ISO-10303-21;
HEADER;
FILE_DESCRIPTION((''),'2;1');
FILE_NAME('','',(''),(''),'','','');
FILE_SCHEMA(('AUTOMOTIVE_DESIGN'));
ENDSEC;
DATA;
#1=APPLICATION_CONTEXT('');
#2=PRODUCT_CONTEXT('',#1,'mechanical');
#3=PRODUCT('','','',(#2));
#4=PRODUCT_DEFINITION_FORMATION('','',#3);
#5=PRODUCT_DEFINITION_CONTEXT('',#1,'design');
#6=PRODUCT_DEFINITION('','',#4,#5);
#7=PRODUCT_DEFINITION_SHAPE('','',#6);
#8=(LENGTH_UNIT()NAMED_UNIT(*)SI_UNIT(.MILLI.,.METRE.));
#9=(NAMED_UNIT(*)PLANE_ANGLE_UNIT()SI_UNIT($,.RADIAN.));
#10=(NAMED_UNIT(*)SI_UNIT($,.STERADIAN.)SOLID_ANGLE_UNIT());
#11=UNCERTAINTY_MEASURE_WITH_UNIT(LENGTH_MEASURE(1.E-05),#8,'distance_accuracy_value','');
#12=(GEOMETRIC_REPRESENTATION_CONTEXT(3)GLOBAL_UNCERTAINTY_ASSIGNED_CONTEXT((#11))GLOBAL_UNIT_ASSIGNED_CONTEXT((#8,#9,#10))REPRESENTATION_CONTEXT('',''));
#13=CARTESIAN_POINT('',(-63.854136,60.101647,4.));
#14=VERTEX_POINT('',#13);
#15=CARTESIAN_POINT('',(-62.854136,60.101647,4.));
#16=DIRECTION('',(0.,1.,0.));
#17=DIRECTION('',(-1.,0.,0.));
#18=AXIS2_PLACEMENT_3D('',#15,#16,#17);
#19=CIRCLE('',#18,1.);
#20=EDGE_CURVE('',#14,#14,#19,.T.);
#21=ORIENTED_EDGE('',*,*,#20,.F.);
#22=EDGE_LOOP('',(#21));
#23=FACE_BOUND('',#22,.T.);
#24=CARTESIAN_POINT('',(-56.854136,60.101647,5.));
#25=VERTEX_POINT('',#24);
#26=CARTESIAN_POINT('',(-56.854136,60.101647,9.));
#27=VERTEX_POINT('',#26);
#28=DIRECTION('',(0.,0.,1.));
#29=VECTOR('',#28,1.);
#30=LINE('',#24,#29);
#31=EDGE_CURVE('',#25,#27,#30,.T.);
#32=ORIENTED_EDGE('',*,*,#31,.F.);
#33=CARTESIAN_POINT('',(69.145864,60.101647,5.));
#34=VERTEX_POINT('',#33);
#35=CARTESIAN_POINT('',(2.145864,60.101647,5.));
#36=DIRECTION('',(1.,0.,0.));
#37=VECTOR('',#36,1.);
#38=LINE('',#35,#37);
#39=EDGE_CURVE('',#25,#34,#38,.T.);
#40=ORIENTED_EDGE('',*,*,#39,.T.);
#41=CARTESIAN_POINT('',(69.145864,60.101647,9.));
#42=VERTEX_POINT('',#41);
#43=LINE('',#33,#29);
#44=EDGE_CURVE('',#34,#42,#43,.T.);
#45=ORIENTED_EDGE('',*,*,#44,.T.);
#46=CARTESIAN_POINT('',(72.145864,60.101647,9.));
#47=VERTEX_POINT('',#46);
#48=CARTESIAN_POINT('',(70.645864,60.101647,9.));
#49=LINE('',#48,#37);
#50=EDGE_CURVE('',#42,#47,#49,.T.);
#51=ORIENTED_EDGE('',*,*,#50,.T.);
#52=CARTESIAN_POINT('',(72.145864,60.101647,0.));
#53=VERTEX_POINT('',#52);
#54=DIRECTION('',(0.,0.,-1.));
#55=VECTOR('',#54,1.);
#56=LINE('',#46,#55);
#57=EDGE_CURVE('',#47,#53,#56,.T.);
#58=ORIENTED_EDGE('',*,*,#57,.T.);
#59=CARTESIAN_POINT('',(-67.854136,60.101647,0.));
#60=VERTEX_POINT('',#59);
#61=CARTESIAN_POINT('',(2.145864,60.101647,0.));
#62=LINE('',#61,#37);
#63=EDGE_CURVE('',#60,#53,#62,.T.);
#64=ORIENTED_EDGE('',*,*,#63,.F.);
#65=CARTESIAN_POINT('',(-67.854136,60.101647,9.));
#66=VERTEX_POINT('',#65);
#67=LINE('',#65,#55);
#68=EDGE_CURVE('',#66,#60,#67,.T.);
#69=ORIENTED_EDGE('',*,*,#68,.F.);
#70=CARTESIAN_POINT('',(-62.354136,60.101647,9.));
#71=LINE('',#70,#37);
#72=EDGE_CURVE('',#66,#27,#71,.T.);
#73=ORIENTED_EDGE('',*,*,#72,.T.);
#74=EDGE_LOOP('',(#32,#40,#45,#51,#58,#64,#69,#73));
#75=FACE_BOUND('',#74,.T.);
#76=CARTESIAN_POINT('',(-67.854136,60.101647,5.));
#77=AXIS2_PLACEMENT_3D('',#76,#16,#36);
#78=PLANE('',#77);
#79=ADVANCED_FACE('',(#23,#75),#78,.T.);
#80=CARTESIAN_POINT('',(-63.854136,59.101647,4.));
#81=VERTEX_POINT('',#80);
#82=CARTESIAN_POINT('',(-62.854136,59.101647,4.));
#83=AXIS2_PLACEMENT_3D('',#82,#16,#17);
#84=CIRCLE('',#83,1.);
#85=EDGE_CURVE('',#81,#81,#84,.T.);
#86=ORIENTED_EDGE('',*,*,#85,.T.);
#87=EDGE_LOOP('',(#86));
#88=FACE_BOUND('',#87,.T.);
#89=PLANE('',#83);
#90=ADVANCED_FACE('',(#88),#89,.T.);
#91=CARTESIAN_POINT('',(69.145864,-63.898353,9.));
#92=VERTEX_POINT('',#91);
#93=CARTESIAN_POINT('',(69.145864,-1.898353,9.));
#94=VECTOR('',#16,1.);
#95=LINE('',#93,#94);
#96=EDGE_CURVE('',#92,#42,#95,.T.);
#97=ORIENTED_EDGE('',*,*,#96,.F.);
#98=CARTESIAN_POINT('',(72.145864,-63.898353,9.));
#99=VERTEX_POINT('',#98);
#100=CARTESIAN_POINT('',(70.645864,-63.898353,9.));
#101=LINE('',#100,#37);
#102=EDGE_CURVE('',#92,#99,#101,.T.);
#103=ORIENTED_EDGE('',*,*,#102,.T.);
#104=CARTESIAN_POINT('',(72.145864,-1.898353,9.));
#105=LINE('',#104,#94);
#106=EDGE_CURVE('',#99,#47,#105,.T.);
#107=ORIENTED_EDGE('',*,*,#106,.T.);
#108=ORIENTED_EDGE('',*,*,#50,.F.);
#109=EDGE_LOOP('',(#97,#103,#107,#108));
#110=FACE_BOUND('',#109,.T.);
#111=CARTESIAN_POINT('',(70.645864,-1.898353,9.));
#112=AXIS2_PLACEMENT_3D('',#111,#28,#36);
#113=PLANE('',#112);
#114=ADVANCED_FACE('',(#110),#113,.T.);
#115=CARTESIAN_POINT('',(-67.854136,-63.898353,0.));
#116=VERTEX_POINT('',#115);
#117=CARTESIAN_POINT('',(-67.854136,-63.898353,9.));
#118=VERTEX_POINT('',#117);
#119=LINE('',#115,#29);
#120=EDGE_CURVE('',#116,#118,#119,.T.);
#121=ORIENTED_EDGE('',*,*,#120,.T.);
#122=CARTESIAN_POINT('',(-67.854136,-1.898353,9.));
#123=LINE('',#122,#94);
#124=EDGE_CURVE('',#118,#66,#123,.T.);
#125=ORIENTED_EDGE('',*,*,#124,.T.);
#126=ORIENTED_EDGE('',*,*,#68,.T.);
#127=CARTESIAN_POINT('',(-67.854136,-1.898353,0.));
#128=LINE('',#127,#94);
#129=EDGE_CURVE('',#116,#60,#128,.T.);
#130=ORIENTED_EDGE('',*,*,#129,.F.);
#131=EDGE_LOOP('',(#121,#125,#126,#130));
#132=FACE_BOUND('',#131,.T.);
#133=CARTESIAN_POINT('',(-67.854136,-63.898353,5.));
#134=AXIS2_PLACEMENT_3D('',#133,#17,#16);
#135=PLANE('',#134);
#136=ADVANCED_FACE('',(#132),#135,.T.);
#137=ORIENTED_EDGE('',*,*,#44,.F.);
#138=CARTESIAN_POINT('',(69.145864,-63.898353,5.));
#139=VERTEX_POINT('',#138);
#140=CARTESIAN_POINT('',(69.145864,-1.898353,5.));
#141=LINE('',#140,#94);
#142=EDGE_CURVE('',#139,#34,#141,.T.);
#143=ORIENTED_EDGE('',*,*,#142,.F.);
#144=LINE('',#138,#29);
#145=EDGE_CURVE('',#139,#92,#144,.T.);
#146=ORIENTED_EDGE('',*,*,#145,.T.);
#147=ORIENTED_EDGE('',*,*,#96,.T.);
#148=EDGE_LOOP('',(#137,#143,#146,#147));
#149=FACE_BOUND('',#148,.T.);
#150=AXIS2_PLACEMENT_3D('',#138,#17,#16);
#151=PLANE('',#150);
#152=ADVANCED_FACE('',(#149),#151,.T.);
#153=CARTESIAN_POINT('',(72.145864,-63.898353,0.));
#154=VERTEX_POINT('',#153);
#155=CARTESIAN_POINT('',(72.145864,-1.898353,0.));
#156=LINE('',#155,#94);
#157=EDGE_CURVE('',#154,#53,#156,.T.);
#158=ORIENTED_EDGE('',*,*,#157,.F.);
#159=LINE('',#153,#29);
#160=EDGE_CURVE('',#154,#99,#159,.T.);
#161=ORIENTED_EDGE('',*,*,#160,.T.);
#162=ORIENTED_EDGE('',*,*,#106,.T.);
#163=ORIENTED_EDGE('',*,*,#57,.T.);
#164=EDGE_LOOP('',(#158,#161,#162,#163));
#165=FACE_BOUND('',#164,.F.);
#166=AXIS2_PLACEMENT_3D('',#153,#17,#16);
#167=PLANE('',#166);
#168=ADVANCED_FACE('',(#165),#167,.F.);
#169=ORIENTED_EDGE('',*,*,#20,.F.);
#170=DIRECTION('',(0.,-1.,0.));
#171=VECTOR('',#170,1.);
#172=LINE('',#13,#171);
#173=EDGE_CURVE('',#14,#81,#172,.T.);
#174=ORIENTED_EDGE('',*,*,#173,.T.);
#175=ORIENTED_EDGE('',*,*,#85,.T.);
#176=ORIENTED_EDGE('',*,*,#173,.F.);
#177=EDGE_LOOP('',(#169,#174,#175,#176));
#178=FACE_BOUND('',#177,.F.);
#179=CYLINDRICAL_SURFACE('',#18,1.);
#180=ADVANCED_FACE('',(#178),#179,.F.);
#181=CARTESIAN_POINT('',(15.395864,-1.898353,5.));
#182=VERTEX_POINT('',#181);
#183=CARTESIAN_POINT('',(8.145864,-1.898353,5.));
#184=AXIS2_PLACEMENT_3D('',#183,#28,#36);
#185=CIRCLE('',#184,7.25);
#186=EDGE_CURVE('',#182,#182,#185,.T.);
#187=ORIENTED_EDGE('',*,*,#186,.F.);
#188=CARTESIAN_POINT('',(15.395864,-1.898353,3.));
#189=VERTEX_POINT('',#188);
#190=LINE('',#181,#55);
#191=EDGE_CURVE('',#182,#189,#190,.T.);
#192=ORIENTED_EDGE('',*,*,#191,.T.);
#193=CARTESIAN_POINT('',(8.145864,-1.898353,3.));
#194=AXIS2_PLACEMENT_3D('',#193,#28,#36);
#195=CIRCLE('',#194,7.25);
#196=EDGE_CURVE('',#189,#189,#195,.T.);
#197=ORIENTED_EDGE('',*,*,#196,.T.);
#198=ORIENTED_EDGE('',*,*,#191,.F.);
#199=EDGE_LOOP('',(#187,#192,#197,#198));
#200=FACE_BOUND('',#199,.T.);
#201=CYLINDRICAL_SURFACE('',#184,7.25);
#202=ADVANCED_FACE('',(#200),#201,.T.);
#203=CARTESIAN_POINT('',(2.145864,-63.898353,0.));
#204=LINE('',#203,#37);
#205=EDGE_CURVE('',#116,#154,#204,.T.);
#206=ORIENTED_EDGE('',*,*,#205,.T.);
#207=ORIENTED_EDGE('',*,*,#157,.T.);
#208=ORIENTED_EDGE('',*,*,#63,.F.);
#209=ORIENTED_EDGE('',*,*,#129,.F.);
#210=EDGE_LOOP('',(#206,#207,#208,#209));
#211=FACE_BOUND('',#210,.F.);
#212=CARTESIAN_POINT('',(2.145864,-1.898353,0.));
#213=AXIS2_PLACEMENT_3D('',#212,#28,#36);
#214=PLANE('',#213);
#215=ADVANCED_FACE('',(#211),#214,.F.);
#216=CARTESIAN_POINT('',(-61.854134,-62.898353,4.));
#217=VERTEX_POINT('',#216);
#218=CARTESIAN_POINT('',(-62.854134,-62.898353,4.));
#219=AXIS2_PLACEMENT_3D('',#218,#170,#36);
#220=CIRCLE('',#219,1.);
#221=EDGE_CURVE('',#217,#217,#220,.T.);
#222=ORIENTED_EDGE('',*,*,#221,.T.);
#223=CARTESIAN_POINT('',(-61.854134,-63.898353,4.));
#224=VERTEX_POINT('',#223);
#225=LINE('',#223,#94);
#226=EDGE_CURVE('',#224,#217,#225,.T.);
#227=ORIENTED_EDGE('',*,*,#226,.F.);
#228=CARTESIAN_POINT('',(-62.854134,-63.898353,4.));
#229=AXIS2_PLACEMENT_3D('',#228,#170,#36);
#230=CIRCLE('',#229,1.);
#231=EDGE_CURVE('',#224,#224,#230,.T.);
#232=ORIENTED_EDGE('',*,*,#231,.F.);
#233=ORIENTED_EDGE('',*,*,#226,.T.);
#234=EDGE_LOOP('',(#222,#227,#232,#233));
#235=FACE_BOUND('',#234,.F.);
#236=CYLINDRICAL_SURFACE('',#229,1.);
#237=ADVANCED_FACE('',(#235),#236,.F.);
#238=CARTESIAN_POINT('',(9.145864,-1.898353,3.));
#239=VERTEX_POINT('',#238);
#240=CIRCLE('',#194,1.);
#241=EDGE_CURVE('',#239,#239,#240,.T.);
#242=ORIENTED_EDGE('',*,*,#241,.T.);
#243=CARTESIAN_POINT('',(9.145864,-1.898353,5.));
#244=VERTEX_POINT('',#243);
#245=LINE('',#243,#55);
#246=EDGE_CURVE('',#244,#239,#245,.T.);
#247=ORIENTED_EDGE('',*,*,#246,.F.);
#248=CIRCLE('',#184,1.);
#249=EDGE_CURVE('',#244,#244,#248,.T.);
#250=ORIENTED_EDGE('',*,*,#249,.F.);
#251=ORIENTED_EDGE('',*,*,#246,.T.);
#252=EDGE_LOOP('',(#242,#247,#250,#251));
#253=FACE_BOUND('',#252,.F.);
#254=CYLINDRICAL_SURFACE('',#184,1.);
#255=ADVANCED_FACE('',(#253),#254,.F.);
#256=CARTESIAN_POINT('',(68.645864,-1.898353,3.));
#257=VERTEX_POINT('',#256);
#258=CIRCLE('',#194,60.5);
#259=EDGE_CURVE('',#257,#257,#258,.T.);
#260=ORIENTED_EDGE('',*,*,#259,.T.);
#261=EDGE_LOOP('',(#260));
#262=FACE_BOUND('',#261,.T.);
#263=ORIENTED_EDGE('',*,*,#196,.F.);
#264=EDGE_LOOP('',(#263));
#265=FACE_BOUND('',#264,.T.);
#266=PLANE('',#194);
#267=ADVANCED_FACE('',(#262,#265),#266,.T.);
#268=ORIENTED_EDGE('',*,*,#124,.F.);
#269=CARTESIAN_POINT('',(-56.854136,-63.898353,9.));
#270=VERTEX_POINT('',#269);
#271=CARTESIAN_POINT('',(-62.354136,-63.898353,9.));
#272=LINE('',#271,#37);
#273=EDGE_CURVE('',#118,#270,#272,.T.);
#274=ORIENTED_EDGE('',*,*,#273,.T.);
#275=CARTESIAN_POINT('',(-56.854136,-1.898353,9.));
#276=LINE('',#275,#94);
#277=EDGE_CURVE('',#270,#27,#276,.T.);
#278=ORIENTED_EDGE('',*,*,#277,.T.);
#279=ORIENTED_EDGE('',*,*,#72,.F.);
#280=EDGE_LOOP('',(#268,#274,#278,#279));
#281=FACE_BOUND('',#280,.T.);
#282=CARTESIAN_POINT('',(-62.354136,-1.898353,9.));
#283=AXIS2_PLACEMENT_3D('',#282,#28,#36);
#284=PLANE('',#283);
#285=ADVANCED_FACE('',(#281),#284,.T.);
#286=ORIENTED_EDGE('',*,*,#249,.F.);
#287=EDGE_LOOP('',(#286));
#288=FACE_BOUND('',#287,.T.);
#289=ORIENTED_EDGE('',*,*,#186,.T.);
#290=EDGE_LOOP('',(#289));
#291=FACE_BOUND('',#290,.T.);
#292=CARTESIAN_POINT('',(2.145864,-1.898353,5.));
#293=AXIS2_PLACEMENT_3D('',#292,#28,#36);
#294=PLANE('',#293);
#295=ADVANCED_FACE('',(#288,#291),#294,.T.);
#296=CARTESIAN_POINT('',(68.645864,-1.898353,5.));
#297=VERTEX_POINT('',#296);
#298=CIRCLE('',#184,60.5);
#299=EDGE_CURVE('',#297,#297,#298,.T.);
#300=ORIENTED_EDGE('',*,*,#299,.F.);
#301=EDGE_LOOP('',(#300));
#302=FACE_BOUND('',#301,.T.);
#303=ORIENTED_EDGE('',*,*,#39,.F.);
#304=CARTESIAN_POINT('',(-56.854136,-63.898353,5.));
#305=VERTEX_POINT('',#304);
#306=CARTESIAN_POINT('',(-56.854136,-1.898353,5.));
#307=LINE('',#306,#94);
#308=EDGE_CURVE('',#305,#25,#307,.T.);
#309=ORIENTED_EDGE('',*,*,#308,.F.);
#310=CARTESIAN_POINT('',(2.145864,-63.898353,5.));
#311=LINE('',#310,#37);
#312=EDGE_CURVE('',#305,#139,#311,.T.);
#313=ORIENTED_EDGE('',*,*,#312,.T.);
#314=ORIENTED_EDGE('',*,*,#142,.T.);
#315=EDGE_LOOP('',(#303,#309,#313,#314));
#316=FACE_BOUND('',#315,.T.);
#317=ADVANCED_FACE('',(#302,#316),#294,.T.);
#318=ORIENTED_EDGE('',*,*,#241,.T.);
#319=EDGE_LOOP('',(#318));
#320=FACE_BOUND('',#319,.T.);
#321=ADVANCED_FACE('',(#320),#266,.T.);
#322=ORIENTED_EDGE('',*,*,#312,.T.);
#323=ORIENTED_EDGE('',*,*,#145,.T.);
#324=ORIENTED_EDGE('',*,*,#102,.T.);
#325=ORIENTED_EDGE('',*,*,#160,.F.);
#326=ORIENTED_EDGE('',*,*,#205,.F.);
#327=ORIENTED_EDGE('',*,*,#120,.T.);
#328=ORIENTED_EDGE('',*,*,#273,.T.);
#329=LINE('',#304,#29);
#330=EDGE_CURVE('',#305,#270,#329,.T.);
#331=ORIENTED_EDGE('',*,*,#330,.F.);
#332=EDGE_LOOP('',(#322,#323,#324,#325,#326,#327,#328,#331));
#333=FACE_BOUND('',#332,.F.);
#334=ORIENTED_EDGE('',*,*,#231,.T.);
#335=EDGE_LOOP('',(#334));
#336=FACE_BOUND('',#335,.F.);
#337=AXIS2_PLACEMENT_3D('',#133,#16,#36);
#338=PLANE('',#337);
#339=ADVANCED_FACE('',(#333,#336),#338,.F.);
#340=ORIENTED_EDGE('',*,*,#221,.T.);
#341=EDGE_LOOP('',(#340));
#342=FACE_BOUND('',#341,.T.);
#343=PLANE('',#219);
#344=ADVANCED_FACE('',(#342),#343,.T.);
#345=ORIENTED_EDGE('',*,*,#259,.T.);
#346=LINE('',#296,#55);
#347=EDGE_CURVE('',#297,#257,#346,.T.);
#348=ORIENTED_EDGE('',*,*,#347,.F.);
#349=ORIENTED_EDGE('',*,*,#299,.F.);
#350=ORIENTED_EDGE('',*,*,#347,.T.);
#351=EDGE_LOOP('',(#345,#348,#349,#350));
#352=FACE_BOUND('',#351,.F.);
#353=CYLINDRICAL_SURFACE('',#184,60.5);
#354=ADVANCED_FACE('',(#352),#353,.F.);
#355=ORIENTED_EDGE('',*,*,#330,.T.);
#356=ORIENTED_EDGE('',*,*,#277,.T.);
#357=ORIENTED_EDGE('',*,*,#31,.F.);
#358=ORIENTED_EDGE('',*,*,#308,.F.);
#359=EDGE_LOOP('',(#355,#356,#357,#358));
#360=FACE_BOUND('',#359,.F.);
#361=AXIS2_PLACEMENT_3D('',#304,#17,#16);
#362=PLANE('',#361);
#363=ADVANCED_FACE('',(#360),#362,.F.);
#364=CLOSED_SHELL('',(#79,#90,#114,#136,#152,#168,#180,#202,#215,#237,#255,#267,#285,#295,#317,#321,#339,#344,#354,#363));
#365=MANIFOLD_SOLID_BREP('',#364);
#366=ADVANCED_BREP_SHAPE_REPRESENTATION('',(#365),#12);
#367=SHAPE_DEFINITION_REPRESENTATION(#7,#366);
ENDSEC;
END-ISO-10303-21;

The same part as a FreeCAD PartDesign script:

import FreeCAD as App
import Part
import Sketcher
from FreeCAD import Vector
Q = App.Units.Quantity

doc = App.newDocument("Part")
body = doc.addObject("PartDesign::Body", "Body")

# Sketch on XY plane
sketch1 = body.newObject("Sketcher::SketchObject", "Sketch")
sketch1.AttachmentSupport = (doc.getObject("XY_Plane"), [""])
sketch1.MapMode = "FlatFace"
sketch1.addGeometry(Part.LineSegment(Vector(-68, 60, 0), Vector(-68, -64, 0)), False)
sketch1.addGeometry(Part.LineSegment(Vector(-68, -64, 0), Vector(72, -64, 0)), False)
sketch1.addGeometry(Part.LineSegment(Vector(72, -64, 0), Vector(72, 60, 0)), False)
sketch1.addGeometry(Part.LineSegment(Vector(72, 60, 0), Vector(-68, 60, 0)), False)
sketch1.addConstraint(Sketcher.Constraint("Coincident", 0, 2, 1, 1))
sketch1.addConstraint(Sketcher.Constraint("Coincident", 1, 2, 2, 1))
sketch1.addConstraint(Sketcher.Constraint("Coincident", 2, 2, 3, 1))
sketch1.addConstraint(Sketcher.Constraint("Coincident", 3, 2, 0, 1))
sketch1.addConstraint(Sketcher.Constraint("Vertical", 0))
sketch1.addConstraint(Sketcher.Constraint("Horizontal", 1))
sketch1.addConstraint(Sketcher.Constraint("Vertical", 2))
sketch1.addConstraint(Sketcher.Constraint("Horizontal", 3))
sketch1.addConstraint(Sketcher.Constraint("DistanceX", 1, 1, 1, 2, Q("140 mm")))
sketch1.addConstraint(Sketcher.Constraint("DistanceY", 0, 2, 0, 1, Q("124 mm")))
sketch1.addConstraint(Sketcher.Constraint("DistanceX", 0, 2, -1, 1, Q("67.854136 mm")))
sketch1.addConstraint(Sketcher.Constraint("DistanceY", 0, 2, -1, 1, Q("63.898353 mm")))
pad1 = body.newObject("PartDesign::Pad", "Pad")
pad1.Profile = sketch1
pad1.Length = 5

# Sketch on XY plane
sketch2 = body.newObject("Sketcher::SketchObject", "Sketch001")
sketch2.AttachmentSupport = (doc.getObject("XY_Plane"), [""])
sketch2.MapMode = "FlatFace"
sketch2.AttachmentOffset = App.Placement(Vector(0, 0, 5), App.Rotation())
sketch2.addGeometry(Part.LineSegment(Vector(-67.9, 60.1, 0), Vector(-67.9, -63.9, 0)), False)
sketch2.addGeometry(Part.LineSegment(Vector(-67.9, -63.9, 0), Vector(-56.9, -63.9, 0)), False)
sketch2.addGeometry(Part.LineSegment(Vector(-56.9, -63.9, 0), Vector(-56.9, 60.1, 0)), False)
sketch2.addGeometry(Part.LineSegment(Vector(-56.9, 60.1, 0), Vector(-67.9, 60.1, 0)), False)
sketch2.addGeometry(Part.LineSegment(Vector(69.1, 60.1, 0), Vector(69.1, -63.9, 0)), False)
sketch2.addGeometry(Part.LineSegment(Vector(69.1, -63.9, 0), Vector(72.1, -63.9, 0)), False)
sketch2.addGeometry(Part.LineSegment(Vector(72.1, -63.9, 0), Vector(72.1, 60.1, 0)), False)
sketch2.addGeometry(Part.LineSegment(Vector(72.1, 60.1, 0), Vector(69.1, 60.1, 0)), False)
sketch2.addConstraint(Sketcher.Constraint("Coincident", 0, 2, 1, 1))
sketch2.addConstraint(Sketcher.Constraint("Coincident", 1, 2, 2, 1))
sketch2.addConstraint(Sketcher.Constraint("Coincident", 2, 2, 3, 1))
sketch2.addConstraint(Sketcher.Constraint("Coincident", 3, 2, 0, 1))
sketch2.addConstraint(Sketcher.Constraint("Coincident", 4, 2, 5, 1))
sketch2.addConstraint(Sketcher.Constraint("Coincident", 5, 2, 6, 1))
sketch2.addConstraint(Sketcher.Constraint("Coincident", 6, 2, 7, 1))
sketch2.addConstraint(Sketcher.Constraint("Coincident", 7, 2, 4, 1))
sketch2.addConstraint(Sketcher.Constraint("Vertical", 0))
sketch2.addConstraint(Sketcher.Constraint("Horizontal", 1))
sketch2.addConstraint(Sketcher.Constraint("Vertical", 2))
sketch2.addConstraint(Sketcher.Constraint("Horizontal", 3))
sketch2.addConstraint(Sketcher.Constraint("Vertical", 4))
sketch2.addConstraint(Sketcher.Constraint("Horizontal", 5))
sketch2.addConstraint(Sketcher.Constraint("Vertical", 6))
sketch2.addConstraint(Sketcher.Constraint("Horizontal", 7))
sketch2.addConstraint(Sketcher.Constraint("Horizontal", 1, 2, 4, 2))
sketch2.addConstraint(Sketcher.Constraint("Horizontal", 3, 2, 6, 2))
sketch2.addConstraint(Sketcher.Constraint("DistanceX", 1, 1, 1, 2, Q("11 mm")))
sketch2.addConstraint(Sketcher.Constraint("DistanceX", 5, 1, 5, 2, Q("3 mm")))
sketch2.addConstraint(Sketcher.Constraint("DistanceY", 0, 2, 0, 1, Q("124 mm")))
sketch2.addConstraint(Sketcher.Constraint("DistanceX", 1, 2, 4, 2, Q("126 mm")))
sketch2.addConstraint(Sketcher.Constraint("DistanceX", 0, 2, -1, 1, Q("67.854136 mm")))
sketch2.addConstraint(Sketcher.Constraint("DistanceY", 0, 2, -1, 1, Q("63.898353 mm")))
pad2 = body.newObject("PartDesign::Pad", "Pad001")
pad2.Profile = sketch2
pad2.Length = 4

# Sketch on XY plane
sketch3 = body.newObject("Sketcher::SketchObject", "Sketch002")
sketch3.AttachmentSupport = (doc.getObject("XY_Plane"), [""])
sketch3.MapMode = "FlatFace"
sketch3.AttachmentOffset = App.Placement(Vector(0, 0, 5), App.Rotation())
sketch3.addGeometry(Part.Circle(Vector(8.1, -1.9, 0), Vector(0, 0, 1), 60.5), False)
sketch3.addGeometry(Part.Circle(Vector(8.1, -1.9, 0), Vector(0, 0, 1), 7.2), False)
sketch3.addGeometry(Part.Circle(Vector(8.1, -1.9, 0), Vector(0, 0, 1), 1), False)
sketch3.addConstraint(Sketcher.Constraint("Coincident", 1, 3, 0, 3))
sketch3.addConstraint(Sketcher.Constraint("Coincident", 2, 3, 0, 3))
sketch3.addConstraint(Sketcher.Constraint("Diameter", 0, Q("121 mm")))
sketch3.addConstraint(Sketcher.Constraint("Diameter", 2, Q("2 mm")))
sketch3.addConstraint(Sketcher.Constraint("Diameter", 1, Q("14.5 mm")))
sketch3.addConstraint(Sketcher.Constraint("DistanceX", -1, 1, 0, 3, Q("8.145864 mm")))
sketch3.addConstraint(Sketcher.Constraint("DistanceY", 0, 3, -1, 1, Q("1.898353 mm")))
pocket1 = body.newObject("PartDesign::Pocket", "Pocket")
pocket1.Profile = sketch3
pocket1.Length = 2

# Sketch on XZ plane
sketch4 = body.newObject("Sketcher::SketchObject", "Sketch003")
sketch4.AttachmentSupport = (doc.getObject("XZ_Plane"), [""])
sketch4.MapMode = "FlatFace"
sketch4.AttachmentOffset = App.Placement(Vector(0, 0, 63.898353), App.Rotation())
sketch4.addGeometry(Part.Circle(Vector(-62.9, 4, 0), Vector(0, 0, 1), 1), False)
sketch4.addConstraint(Sketcher.Constraint("Diameter", 0, Q("2 mm")))
sketch4.addConstraint(Sketcher.Constraint("DistanceY", -1, 1, 0, 3, Q("4 mm")))
sketch4.addConstraint(Sketcher.Constraint("DistanceX", 0, 3, -1, 1, Q("62.854134 mm")))
pocket2 = body.newObject("PartDesign::Pocket", "Pocket001")
pocket2.Profile = sketch4
pocket2.Length = 1

# Sketch on XZ plane
sketch5 = body.newObject("Sketcher::SketchObject", "Sketch004")
sketch5.AttachmentSupport = (doc.getObject("XZ_Plane"), [""])
sketch5.MapMode = "FlatFace"
sketch5.AttachmentOffset = App.Placement(Vector(0, 0, -60.101647), App.Rotation())
sketch5.addGeometry(Part.Circle(Vector(-62.9, 4, 0), Vector(0, 0, 1), 1), False)
sketch5.addConstraint(Sketcher.Constraint("Diameter", 0, Q("2 mm")))
sketch5.addConstraint(Sketcher.Constraint("DistanceY", -1, 1, 0, 3, Q("4 mm")))
sketch5.addConstraint(Sketcher.Constraint("DistanceX", 0, 3, -1, 1, Q("62.854136 mm")))
pocket3 = body.newObject("PartDesign::Pocket", "Pocket002")
pocket3.Profile = sketch5
pocket3.Length = 1
pocket3.Reversed = True

doc.recompute()
